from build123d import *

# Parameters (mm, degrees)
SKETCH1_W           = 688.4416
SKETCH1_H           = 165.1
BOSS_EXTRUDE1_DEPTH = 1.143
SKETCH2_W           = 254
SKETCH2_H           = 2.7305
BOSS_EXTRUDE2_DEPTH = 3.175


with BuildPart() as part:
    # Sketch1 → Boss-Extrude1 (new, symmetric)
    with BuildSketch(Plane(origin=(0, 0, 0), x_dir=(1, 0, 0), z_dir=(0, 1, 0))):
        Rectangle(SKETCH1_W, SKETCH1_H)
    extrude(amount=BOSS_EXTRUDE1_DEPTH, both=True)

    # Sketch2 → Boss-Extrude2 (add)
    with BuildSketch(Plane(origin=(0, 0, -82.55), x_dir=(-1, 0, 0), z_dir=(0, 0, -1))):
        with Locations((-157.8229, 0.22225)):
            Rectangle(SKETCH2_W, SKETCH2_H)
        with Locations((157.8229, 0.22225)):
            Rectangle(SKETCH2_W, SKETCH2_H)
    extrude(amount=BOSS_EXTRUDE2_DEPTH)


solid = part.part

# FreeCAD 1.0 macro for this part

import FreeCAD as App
import Part
import Sketcher
from FreeCAD import Vector
Q = App.Units.Quantity

doc = App.newDocument("Part")
body = doc.addObject("PartDesign::Body", "Body")

# Sketch on XZ plane
sketch1 = body.newObject("Sketcher::SketchObject", "Sketch")
sketch1.AttachmentSupport = (doc.getObject("XZ_Plane"), [""])
sketch1.MapMode = "FlatFace"
sketch1.addGeometry(Part.LineSegment(Vector(-344, -83, 0), Vector(-344, 83, 0)), False)
sketch1.addGeometry(Part.LineSegment(Vector(-344, 83, 0), Vector(344, 83, 0)), False)
sketch1.addGeometry(Part.LineSegment(Vector(344, 83, 0), Vector(344, -83, 0)), False)
sketch1.addGeometry(Part.LineSegment(Vector(344, -83, 0), Vector(-344, -83, 0)), False)
sketch1.addConstraint(Sketcher.Constraint("Coincident", 0, 2, 1, 1))
sketch1.addConstraint(Sketcher.Constraint("Coincident", 1, 2, 2, 1))
sketch1.addConstraint(Sketcher.Constraint("Coincident", 2, 2, 3, 1))
sketch1.addConstraint(Sketcher.Constraint("Coincident", 3, 2, 0, 1))
sketch1.addConstraint(Sketcher.Constraint("Vertical", 0))
sketch1.addConstraint(Sketcher.Constraint("Horizontal", 1))
sketch1.addConstraint(Sketcher.Constraint("Vertical", 2))
sketch1.addConstraint(Sketcher.Constraint("Horizontal", 3))
sketch1.addConstraint(Sketcher.Constraint("Symmetric", 0, 2, 2, 2, -1, 1))
sketch1.addConstraint(Sketcher.Constraint("DistanceY", 0, 1, 0, 2, Q("6.5 in")))
sketch1.addConstraint(Sketcher.Constraint("DistanceX", 1, 1, 1, 2, Q("27.104 in")))
pad1 = body.newObject("PartDesign::Pad", "Pad")
pad1.Profile = sketch1
pad1.Length = Q("0.09 in")
pad1.Midplane = True

# Sketch on XY plane
sketch2 = body.newObject("Sketcher::SketchObject", "Sketch001")
sketch2.AttachmentSupport = (doc.getObject("XY_Plane"), [""])
sketch2.MapMode = "FlatFace"
sketch2.AttachmentOffset = App.Placement(Vector(0, 0, -3.25 * 25.4), App.Rotation())
sketch2.addGeometry(Part.LineSegment(Vector(284.8, 1.6, 0), Vector(284.8, -1.1, 0)), False)
sketch2.addGeometry(Part.LineSegment(Vector(284.8, -1.1, 0), Vector(30.8, -1.1, 0)), False)
sketch2.addGeometry(Part.LineSegment(Vector(30.8, -1.1, 0), Vector(30.8, 1.6, 0)), False)
sketch2.addGeometry(Part.LineSegment(Vector(30.8, 1.6, 0), Vector(284.8, 1.6, 0)), False)
sketch2.addGeometry(Part.LineSegment(Vector(-30.8, 1.6, 0), Vector(-30.8, -1.1, 0)), False)
sketch2.addGeometry(Part.LineSegment(Vector(-30.8, -1.1, 0), Vector(-284.8, -1.1, 0)), False)
sketch2.addGeometry(Part.LineSegment(Vector(-284.8, -1.1, 0), Vector(-284.8, 1.6, 0)), False)
sketch2.addGeometry(Part.LineSegment(Vector(-284.8, 1.6, 0), Vector(-30.8, 1.6, 0)), False)
sketch2.addConstraint(Sketcher.Constraint("Coincident", 0, 2, 1, 1))
sketch2.addConstraint(Sketcher.Constraint("Coincident", 1, 2, 2, 1))
sketch2.addConstraint(Sketcher.Constraint("Coincident", 2, 2, 3, 1))
sketch2.addConstraint(Sketcher.Constraint("Coincident", 3, 2, 0, 1))
sketch2.addConstraint(Sketcher.Constraint("Coincident", 4, 2, 5, 1))
sketch2.addConstraint(Sketcher.Constraint("Coincident", 5, 2, 6, 1))
sketch2.addConstraint(Sketcher.Constraint("Coincident", 6, 2, 7, 1))
sketch2.addConstraint(Sketcher.Constraint("Coincident", 7, 2, 4, 1))
sketch2.addConstraint(Sketcher.Constraint("Vertical", 0))
sketch2.addConstraint(Sketcher.Constraint("Horizontal", 1))
sketch2.addConstraint(Sketcher.Constraint("Vertical", 2))
sketch2.addConstraint(Sketcher.Constraint("Horizontal", 3))
sketch2.addConstraint(Sketcher.Constraint("Vertical", 4))
sketch2.addConstraint(Sketcher.Constraint("Horizontal", 5))
sketch2.addConstraint(Sketcher.Constraint("Vertical", 6))
sketch2.addConstraint(Sketcher.Constraint("Horizontal", 7))
sketch2.addConstraint(Sketcher.Constraint("Symmetric", 1, 2, 4, 2, -2))
sketch2.addConstraint(Sketcher.Constraint("Symmetric", 3, 2, 6, 2, -2))
sketch2.addConstraint(Sketcher.Constraint("DistanceX", 1, 2, 1, 1, Q("10 in")))
sketch2.addConstraint(Sketcher.Constraint("DistanceY", 0, 2, 0, 1, Q("0.1075 in")))
sketch2.addConstraint(Sketcher.Constraint("DistanceY", 0, 2, -1, 1, Q("0.045 in")))
sketch2.addConstraint(Sketcher.Constraint("DistanceX", 4, 2, 1, 2, Q("2.427 in")))
pad2 = body.newObject("PartDesign::Pad", "Pad001")
pad2.Profile = sketch2
pad2.Length = Q("0.125 in")
pad2.Reversed = True

doc.recompute()
